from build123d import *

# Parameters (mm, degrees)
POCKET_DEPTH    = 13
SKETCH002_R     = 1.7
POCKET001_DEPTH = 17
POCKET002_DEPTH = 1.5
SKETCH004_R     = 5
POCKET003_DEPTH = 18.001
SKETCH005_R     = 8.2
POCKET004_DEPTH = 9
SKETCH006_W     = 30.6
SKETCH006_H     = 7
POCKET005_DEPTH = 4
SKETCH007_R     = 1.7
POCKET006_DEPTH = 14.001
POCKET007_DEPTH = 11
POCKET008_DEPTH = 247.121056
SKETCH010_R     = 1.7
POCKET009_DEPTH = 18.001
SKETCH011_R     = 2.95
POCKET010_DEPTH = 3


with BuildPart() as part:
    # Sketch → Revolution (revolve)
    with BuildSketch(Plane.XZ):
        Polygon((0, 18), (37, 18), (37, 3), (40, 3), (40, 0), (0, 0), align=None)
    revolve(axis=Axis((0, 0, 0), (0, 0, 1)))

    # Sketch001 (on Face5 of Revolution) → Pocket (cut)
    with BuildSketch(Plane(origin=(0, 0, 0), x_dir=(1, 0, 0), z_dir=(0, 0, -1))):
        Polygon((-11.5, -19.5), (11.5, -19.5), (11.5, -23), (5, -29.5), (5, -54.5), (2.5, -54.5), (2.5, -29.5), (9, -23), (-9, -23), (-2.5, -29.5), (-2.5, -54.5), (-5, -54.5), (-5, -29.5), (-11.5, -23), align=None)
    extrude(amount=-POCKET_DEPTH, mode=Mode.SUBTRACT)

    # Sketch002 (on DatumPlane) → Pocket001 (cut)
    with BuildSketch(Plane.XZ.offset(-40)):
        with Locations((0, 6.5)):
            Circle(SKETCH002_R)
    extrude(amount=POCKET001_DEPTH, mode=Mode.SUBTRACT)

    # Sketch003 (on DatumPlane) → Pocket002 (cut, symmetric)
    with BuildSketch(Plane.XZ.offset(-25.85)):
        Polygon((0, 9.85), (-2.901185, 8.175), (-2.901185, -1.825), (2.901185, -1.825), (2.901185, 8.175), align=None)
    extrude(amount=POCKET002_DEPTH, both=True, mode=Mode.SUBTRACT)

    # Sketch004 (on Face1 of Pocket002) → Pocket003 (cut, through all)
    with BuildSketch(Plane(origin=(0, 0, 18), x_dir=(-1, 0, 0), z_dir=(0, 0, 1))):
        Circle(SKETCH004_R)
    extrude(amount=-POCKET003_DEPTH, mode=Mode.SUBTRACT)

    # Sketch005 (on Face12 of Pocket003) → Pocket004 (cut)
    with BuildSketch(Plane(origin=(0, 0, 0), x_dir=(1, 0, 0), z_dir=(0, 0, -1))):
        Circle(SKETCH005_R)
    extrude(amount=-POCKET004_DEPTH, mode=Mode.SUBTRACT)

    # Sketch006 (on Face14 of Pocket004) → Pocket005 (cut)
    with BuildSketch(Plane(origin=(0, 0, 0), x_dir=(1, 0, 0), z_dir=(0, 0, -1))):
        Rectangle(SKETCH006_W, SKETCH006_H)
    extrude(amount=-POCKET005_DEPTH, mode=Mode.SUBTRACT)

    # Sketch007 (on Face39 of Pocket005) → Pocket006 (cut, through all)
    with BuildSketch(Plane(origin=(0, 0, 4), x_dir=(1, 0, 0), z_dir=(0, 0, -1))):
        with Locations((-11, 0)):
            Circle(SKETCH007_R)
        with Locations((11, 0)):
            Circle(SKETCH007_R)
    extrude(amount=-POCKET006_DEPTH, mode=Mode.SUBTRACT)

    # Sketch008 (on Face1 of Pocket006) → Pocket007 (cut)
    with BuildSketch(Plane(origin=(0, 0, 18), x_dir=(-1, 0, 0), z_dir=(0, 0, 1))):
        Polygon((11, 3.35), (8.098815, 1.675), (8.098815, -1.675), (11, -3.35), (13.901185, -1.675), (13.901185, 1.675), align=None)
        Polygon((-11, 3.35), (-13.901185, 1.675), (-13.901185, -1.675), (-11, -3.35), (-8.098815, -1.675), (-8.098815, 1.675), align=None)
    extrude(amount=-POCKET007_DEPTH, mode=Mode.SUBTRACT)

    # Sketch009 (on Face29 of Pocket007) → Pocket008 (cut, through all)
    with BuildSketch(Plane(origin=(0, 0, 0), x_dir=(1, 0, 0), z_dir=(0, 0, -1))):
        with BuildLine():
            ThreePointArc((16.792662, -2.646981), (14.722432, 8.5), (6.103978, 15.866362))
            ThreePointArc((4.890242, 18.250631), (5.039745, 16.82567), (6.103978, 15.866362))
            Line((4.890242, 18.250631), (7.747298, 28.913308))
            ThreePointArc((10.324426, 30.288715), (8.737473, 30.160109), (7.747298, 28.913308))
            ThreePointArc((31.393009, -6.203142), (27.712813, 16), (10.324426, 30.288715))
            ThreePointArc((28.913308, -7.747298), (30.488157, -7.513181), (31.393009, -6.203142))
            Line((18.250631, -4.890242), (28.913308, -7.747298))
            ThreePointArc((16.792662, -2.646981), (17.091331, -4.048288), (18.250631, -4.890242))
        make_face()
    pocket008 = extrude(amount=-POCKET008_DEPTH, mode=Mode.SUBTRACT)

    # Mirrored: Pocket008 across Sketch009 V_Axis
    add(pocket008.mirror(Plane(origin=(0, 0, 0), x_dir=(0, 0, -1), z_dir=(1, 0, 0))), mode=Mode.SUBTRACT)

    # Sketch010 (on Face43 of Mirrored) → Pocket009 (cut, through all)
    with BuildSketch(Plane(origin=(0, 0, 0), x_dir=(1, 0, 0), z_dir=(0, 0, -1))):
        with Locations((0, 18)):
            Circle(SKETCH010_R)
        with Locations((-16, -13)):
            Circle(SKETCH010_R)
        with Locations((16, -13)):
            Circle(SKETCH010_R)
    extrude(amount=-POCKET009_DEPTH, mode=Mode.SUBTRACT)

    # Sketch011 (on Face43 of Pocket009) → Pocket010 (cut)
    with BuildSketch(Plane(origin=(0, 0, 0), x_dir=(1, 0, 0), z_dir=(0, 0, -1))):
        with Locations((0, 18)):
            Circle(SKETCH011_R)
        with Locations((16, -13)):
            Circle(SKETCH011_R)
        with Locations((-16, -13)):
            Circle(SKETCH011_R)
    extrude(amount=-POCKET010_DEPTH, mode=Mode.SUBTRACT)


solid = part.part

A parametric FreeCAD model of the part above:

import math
import FreeCAD as App
import Part
import Sketcher
from FreeCAD import Vector
Q = App.Units.Quantity

doc = App.newDocument("Part")
body = doc.addObject("PartDesign::Body", "Body")

sketch1 = body.newObject("Sketcher::SketchObject", "Sketch")
sketch1.AttachmentSupport = (doc.getObject("XZ_Plane"), [""])
sketch1.MapMode = "FlatFace"
sketch1.addGeometry([
    Part.LineSegment(Vector(37, 18, 0), Vector(0, 18, 0)),
    Part.LineSegment(Vector(0, 18, 0), Vector(0, 0, 0)),
    Part.LineSegment(Vector(0, 0, 0), Vector(40, 0, 0)),
    Part.LineSegment(Vector(40, 0, 0), Vector(40, 3, 0)),
    Part.LineSegment(Vector(40, 3, 0), Vector(37, 3, 0)),
    Part.LineSegment(Vector(37, 3, 0), Vector(37, 18, 0)),
], False)
sketch1.addConstraint([
    Sketcher.Constraint("Coincident", 0, 2, 1, 1),
    Sketcher.Constraint("Coincident", 1, 2, 2, 1),
    Sketcher.Constraint("Coincident", 2, 2, 3, 1),
    Sketcher.Constraint("Coincident", 3, 2, 4, 1),
    Sketcher.Constraint("Coincident", 4, 2, 5, 1),
    Sketcher.Constraint("Coincident", 5, 2, 0, 1),
    Sketcher.Constraint("Horizontal", 0),
    Sketcher.Constraint("Vertical", 1),
    Sketcher.Constraint("Horizontal", 2),
    Sketcher.Constraint("Vertical", 3),
    Sketcher.Constraint("Horizontal", 4),
    Sketcher.Constraint("Vertical", 5),
    Sketcher.Constraint("Coincident", 1, 2, -1, 1),
    Sketcher.Constraint("Equal", 4, 3),
    Sketcher.Constraint("DistanceX", 0, 2, 0, 1, 37.0),
    Sketcher.Constraint("DistanceX", 2, 1, 2, 2, 40.0),
    Sketcher.Constraint("DistanceY", 1, 2, 1, 1, 18.0),
])
revolution = body.newObject("PartDesign::Revolution", "Revolution")
revolution.Profile = sketch1
revolution.ReferenceAxis = (sketch1, ["V_Axis"])
revolution.Angle = 360

sketch2 = body.newObject("Sketcher::SketchObject", "Sketch001")
sketch2.AttachmentSupport = (doc.getObject("XY_Plane"), [""])
sketch2.MapMode = "FlatFace"
sketch2.addGeometry([
    Part.LineSegment(Vector(11.5, 19.5, 0), Vector(-11.5, 19.5, 0)),
    Part.LineSegment(Vector(-11.5, 19.5, 0), Vector(-11.5, 23, 0)),
    Part.LineSegment(Vector(-11.5, 23, 0), Vector(-5, 29.5, 0)),
    Part.LineSegment(Vector(-5, 29.5, 0), Vector(-5, 54.5, 0)),
    Part.LineSegment(Vector(-5, 54.5, 0), Vector(-2.5, 54.5, 0)),
    Part.LineSegment(Vector(-2.5, 54.5, 0), Vector(-2.5, 29.5, 0)),
    Part.LineSegment(Vector(-2.5, 29.5, 0), Vector(-9, 23, 0)),
    Part.LineSegment(Vector(-9, 23, 0), Vector(9, 23, 0)),
    Part.LineSegment(Vector(9, 23, 0), Vector(2.5, 29.5, 0)),
    Part.LineSegment(Vector(2.5, 29.5, 0), Vector(2.5, 54.5, 0)),
    Part.LineSegment(Vector(2.5, 54.5, 0), Vector(5, 54.5, 0)),
    Part.LineSegment(Vector(5, 54.5, 0), Vector(5, 29.5, 0)),
    Part.LineSegment(Vector(5, 29.5, 0), Vector(11.5, 23, 0)),
    Part.LineSegment(Vector(11.5, 23, 0), Vector(11.5, 19.5, 0)),
], False)
sketch2.addConstraint([
    Sketcher.Constraint("Coincident", 0, 2, 1, 1),
    Sketcher.Constraint("Coincident", 1, 2, 2, 1),
    Sketcher.Constraint("Coincident", 2, 2, 3, 1),
    Sketcher.Constraint("Coincident", 3, 2, 4, 1),
    Sketcher.Constraint("Coincident", 4, 2, 5, 1),
    Sketcher.Constraint("Coincident", 5, 2, 6, 1),
    Sketcher.Constraint("Coincident", 6, 2, 7, 1),
    Sketcher.Constraint("Coincident", 7, 2, 8, 1),
    Sketcher.Constraint("Coincident", 8, 2, 9, 1),
    Sketcher.Constraint("Coincident", 9, 2, 10, 1),
    Sketcher.Constraint("Coincident", 10, 2, 11, 1),
    Sketcher.Constraint("Coincident", 11, 2, 12, 1),
    Sketcher.Constraint("Coincident", 12, 2, 13, 1),
    Sketcher.Constraint("Coincident", 13, 2, 0, 1),
    Sketcher.Constraint("Horizontal", 0),
    Sketcher.Constraint("Vertical", 1),
    Sketcher.Constraint("Vertical", 3),
    Sketcher.Constraint("Horizontal", 4),
    Sketcher.Constraint("Vertical", 5),
    Sketcher.Constraint("Horizontal", 7),
    Sketcher.Constraint("Vertical", 9),
    Sketcher.Constraint("Horizontal", 10),
    Sketcher.Constraint("Vertical", 11),
    Sketcher.Constraint("Vertical", 13),
    Sketcher.Constraint("Symmetric", 5, 2, 8, 2, -2),
    Sketcher.Constraint("Symmetric", 3, 2, 10, 2, -2),
    Sketcher.Constraint("Symmetric", 1, 2, 12, 2, -2),
    Sketcher.Constraint("Parallel", 2, 6),
    Sketcher.Constraint("Perpendicular", 6, 8),
    Sketcher.Constraint("Parallel", 8, 12),
    Sketcher.Constraint("Horizontal", 2, 2, 5, 2),
    Sketcher.Constraint("Horizontal", 1, 2, 6, 2),
    Sketcher.Constraint("Horizontal", 8, 2, 11, 2),
    Sketcher.Constraint("DistanceX", 0, 2, 0, 1, 23.0),
    Sketcher.Constraint("DistanceX", 7, 1, 7, 2, 18.0),
    Sketcher.Constraint("DistanceY", 3, 1, 3, 2, 25.0),
    Sketcher.Constraint("DistanceY", 1, 1, 1, 2, 3.5),
    Sketcher.Constraint("DistanceY", -1, 1, 1, 2, 23.0),
    Sketcher.Constraint("DistanceX", 2, 2, -1, 1, 5.0),
])
pocket1 = body.newObject("PartDesign::Pocket", "Pocket")
pocket1.Profile = sketch2
pocket1.Length = 13
pocket1.Reversed = True

sketch3 = body.newObject("Sketcher::SketchObject", "Sketch002")
sketch3.AttachmentSupport = (doc.getObject("XZ_Plane"), [""])
sketch3.MapMode = "FlatFace"
sketch3.AttachmentOffset = App.Placement(Vector(0, 0, -40), App.Rotation())
sketch3.addGeometry(Part.Circle(Vector(0, 6.5, 0), Vector(0, 0, 1), 1.7), False)
sketch3.addConstraint([
    Sketcher.Constraint("PointOnObject", 0, 3, -2),
    Sketcher.Constraint("Diameter", 0, 3.4),
    Sketcher.Constraint("DistanceY", -1, 1, 0, 3, 6.5),
])
pocket2 = body.newObject("PartDesign::Pocket", "Pocket001")
pocket2.Profile = sketch3
pocket2.Length = 17
pocket2.Reversed = True

sketch4 = body.newObject("Sketcher::SketchObject", "Sketch003")
sketch4.AttachmentSupport = (doc.getObject("XZ_Plane"), [""])
sketch4.MapMode = "FlatFace"
sketch4.AttachmentOffset = App.Placement(Vector(0, 0, -25.85), App.Rotation())
sketch4.addGeometry([
    Part.LineSegment(Vector(0, 9.85, 0), Vector(-2.901185, 8.175, 0)),
    Part.LineSegment(Vector(-2.901185, 8.175, 0), Vector(-2.901185, -1.825, 0)),
    Part.LineSegment(Vector(-2.901185, -1.825, 0), Vector(2.901185, -1.825, 0)),
    Part.LineSegment(Vector(2.901185, -1.825, 0), Vector(2.901185, 8.175, 0)),
    Part.LineSegment(Vector(2.901185, 8.175, 0), Vector(0, 9.85, 0)),
], False)
sketch4.addConstraint([
    Sketcher.Constraint("Coincident", 0, 2, 1, 1),
    Sketcher.Constraint("Coincident", 1, 2, 2, 1),
    Sketcher.Constraint("Coincident", 2, 2, 3, 1),
    Sketcher.Constraint("Coincident", 3, 2, 4, 1),
    Sketcher.Constraint("Coincident", 4, 2, 0, 1),
    Sketcher.Constraint("Vertical", 1),
    Sketcher.Constraint("Horizontal", 2),
    Sketcher.Constraint("Vertical", 3),
    Sketcher.Constraint("Symmetric", 0, 2, 3, 2, -2),
    Sketcher.Constraint("PointOnObject", 4, 2, -2),
    Sketcher.Constraint("DistanceY", 1, 2, 1, 1, 10.0),
    Sketcher.Constraint("Angle", 0, Q("-149.999999 deg")),
    Sketcher.Constraint("Distance", 0, 3.35),
    Sketcher.Constraint("DistanceY", -1, 1, 4, 2, 9.85),
])
pocket3 = body.newObject("PartDesign::Pocket", "Pocket002")
pocket3.Profile = sketch4
pocket3.Length = 3
pocket3.Midplane = True

sketch5 = body.newObject("Sketcher::SketchObject", "Sketch004")
sketch5.AttachmentSupport = (doc.getObject("XY_Plane"), [""])
sketch5.MapMode = "FlatFace"
sketch5.AttachmentOffset = App.Placement(Vector(0, 0, 18), App.Rotation())
sketch5.addGeometry(Part.Circle(Vector(0, 0, 0), Vector(0, 0, 1), 5), False)
sketch5.addConstraint([
    Sketcher.Constraint("Coincident", 0, 3, -1, 1),
    Sketcher.Constraint("Diameter", 0, 10.0),
])
pocket4 = body.newObject("PartDesign::Pocket", "Pocket003")
pocket4.Profile = sketch5
pocket4.Type = "ThroughAll"

sketch6 = body.newObject("Sketcher::SketchObject", "Sketch005")
sketch6.AttachmentSupport = (doc.getObject("XY_Plane"), [""])
sketch6.MapMode = "FlatFace"
sketch6.addGeometry(Part.Circle(Vector(0, 0, 0), Vector(0, 0, 1), 8.2), False)
sketch6.addConstraint([
    Sketcher.Constraint("Coincident", 0, 3, -1, 1),
    Sketcher.Constraint("Diameter", 0, 16.4),
])
pocket5 = body.newObject("PartDesign::Pocket", "Pocket004")
pocket5.Profile = sketch6
pocket5.Length = 9
pocket5.Reversed = True

sketch7 = body.newObject("Sketcher::SketchObject", "Sketch006")
sketch7.AttachmentSupport = (doc.getObject("XY_Plane"), [""])
sketch7.MapMode = "FlatFace"
sketch7.addGeometry([
    Part.LineSegment(Vector(-15.3, -3.5, 0), Vector(-15.3, 3.5, 0)),
    Part.LineSegment(Vector(-15.3, 3.5, 0), Vector(15.3, 3.5, 0)),
    Part.LineSegment(Vector(15.3, 3.5, 0), Vector(15.3, -3.5, 0)),
    Part.LineSegment(Vector(15.3, -3.5, 0), Vector(-15.3, -3.5, 0)),
], False)
sketch7.addConstraint([
    Sketcher.Constraint("Coincident", 0, 2, 1, 1),
    Sketcher.Constraint("Coincident", 1, 2, 2, 1),
    Sketcher.Constraint("Coincident", 2, 2, 3, 1),
    Sketcher.Constraint("Coincident", 3, 2, 0, 1),
    Sketcher.Constraint("Vertical", 0),
    Sketcher.Constraint("Horizontal", 1),
    Sketcher.Constraint("Vertical", 2),
    Sketcher.Constraint("Horizontal", 3),
    Sketcher.Constraint("Symmetric", 0, 2, 2, 2, -1, 1),
    Sketcher.Constraint("DistanceY", 0, 1, 0, 2, 7.0),
    Sketcher.Constraint("DistanceX", 1, 1, 1, 2, 30.6),
])
pocket6 = body.newObject("PartDesign::Pocket", "Pocket005")
pocket6.Profile = sketch7
pocket6.Length = 4
pocket6.Reversed = True

sketch8 = body.newObject("Sketcher::SketchObject", "Sketch007")
sketch8.AttachmentSupport = (doc.getObject("XY_Plane"), [""])
sketch8.MapMode = "FlatFace"
sketch8.AttachmentOffset = App.Placement(Vector(0, 0, 4), App.Rotation())
sketch8.addGeometry([
    Part.Circle(Vector(-11, 0, 0), Vector(0, 0, 1), 1.7),
    Part.Circle(Vector(11, 0, 0), Vector(0, 0, 1), 1.7),
], False)
sketch8.addConstraint([
    Sketcher.Constraint("Equal", 0, 1),
    Sketcher.Constraint("Symmetric", 0, 3, 1, 3, -1, 1),
    Sketcher.Constraint("PointOnObject", 0, 3, -1),
    Sketcher.Constraint("Diameter", 0, 3.4),
    Sketcher.Constraint("DistanceX", 0, 3, -1, 1, 11.0),
])
pocket7 = body.newObject("PartDesign::Pocket", "Pocket006")
pocket7.Profile = sketch8
pocket7.Type = "ThroughAll"
pocket7.Reversed = True

sketch9 = body.newObject("Sketcher::SketchObject", "Sketch008")
sketch9.AttachmentSupport = (doc.getObject("XY_Plane"), [""])
sketch9.MapMode = "FlatFace"
sketch9.AttachmentOffset = App.Placement(Vector(0, 0, 18), App.Rotation())
sketch9.addGeometry([
    Part.LineSegment(Vector(-11, -3.35, 0), Vector(-8.098815, -1.675, 0)),
    Part.LineSegment(Vector(-8.098815, -1.675, 0), Vector(-8.098815, 1.675, 0)),
    Part.LineSegment(Vector(-8.098815, 1.675, 0), Vector(-11, 3.35, 0)),
    Part.LineSegment(Vector(-11, 3.35, 0), Vector(-13.901185, 1.675, 0)),
    Part.LineSegment(Vector(-13.901185, 1.675, 0), Vector(-13.901185, -1.675, 0)),
    Part.LineSegment(Vector(-13.901185, -1.675, 0), Vector(-11, -3.35, 0)),
    Part.LineSegment(Vector(11, -3.35, 0), Vector(13.901185, -1.675, 0)),
    Part.LineSegment(Vector(13.901185, -1.675, 0), Vector(13.901185, 1.675, 0)),
    Part.LineSegment(Vector(13.901185, 1.675, 0), Vector(11, 3.35, 0)),
    Part.LineSegment(Vector(11, 3.35, 0), Vector(8.098815, 1.675, 0)),
    Part.LineSegment(Vector(8.098815, 1.675, 0), Vector(8.098815, -1.675, 0)),
    Part.LineSegment(Vector(8.098815, -1.675, 0), Vector(11, -3.35, 0)),
], False)
sketch9.addConstraint([
    Sketcher.Constraint("Coincident", 0, 2, 1, 1),
    Sketcher.Constraint("Coincident", 1, 2, 2, 1),
    Sketcher.Constraint("Coincident", 2, 2, 3, 1),
    Sketcher.Constraint("Coincident", 3, 2, 4, 1),
    Sketcher.Constraint("Coincident", 4, 2, 5, 1),
    Sketcher.Constraint("Coincident", 5, 2, 0, 1),
    Sketcher.Constraint("Coincident", 6, 2, 7, 1),
    Sketcher.Constraint("Coincident", 7, 2, 8, 1),
    Sketcher.Constraint("Coincident", 8, 2, 9, 1),
    Sketcher.Constraint("Coincident", 9, 2, 10, 1),
    Sketcher.Constraint("Coincident", 10, 2, 11, 1),
    Sketcher.Constraint("Coincident", 11, 2, 6, 1),
    Sketcher.Constraint("Vertical", 1),
    Sketcher.Constraint("Vertical", 4),
    Sketcher.Constraint("Vertical", 7),
    Sketcher.Constraint("Vertical", 10),
    Sketcher.Constraint("Symmetric", 3, 2, 6, 2, -1, 1),
    Sketcher.Constraint("Symmetric", 5, 2, 8, 2, -1, 1),
    Sketcher.Constraint("Symmetric", 0, 2, 9, 2, -1, 1),
    Sketcher.Constraint("Symmetric", 2, 2, 11, 2, -1, 1),
    Sketcher.Constraint("Symmetric", 2, 2, 8, 2, -2),
    Sketcher.Constraint("Parallel", 0, 3),
    Sketcher.Constraint("Parallel", 2, 5),
    Sketcher.Constraint("Parallel", 5, 8),
    Sketcher.Constraint("Parallel", 8, 11),
    Sketcher.Constraint("Horizontal", 1, 2, 3, 2),
    Sketcher.Constraint("Horizontal", 0, 2, 4, 2),
    Sketcher.Constraint("Angle", 0, Q("30.000001 deg")),
    Sketcher.Constraint("DistanceX", 2, 2, -1, 1, 11.0),
    Sketcher.Constraint("DistanceY", 1, 1, 1, 2, 3.35),
    Sketcher.Constraint("DistanceY", 5, 2, 2, 2, 6.7),
])
pocket8 = body.newObject("PartDesign::Pocket", "Pocket007")
pocket8.Profile = sketch9
pocket8.Length = 11

sketch10 = body.newObject("Sketcher::SketchObject", "Sketch009")
sketch10.AttachmentSupport = (doc.getObject("XY_Plane"), [""])
sketch10.MapMode = "FlatFace"
sketch10.addGeometry([
    Part.ArcOfCircle(Part.Circle(Vector(0.000001, 0, 0), Vector(0, 0, 1), 16.999999), math.radians(-68.957675), math.radians(8.957673)),
    Part.ArcOfCircle(Part.Circle(Vector(18.76827, 2.95839, 0), Vector(0, 0, 1), 2.000001), math.radians(105.000028), math.radians(188.957647)),
    Part.LineSegment(Vector(18.250631, 4.890242, 0), Vector(28.913308, 7.747298, 0)),
    Part.ArcOfCircle(Part.Circle(Vector(29.430945, 5.815445, 0), Vector(0, 0, 1), 2.000001), math.radians(11.177448), math.radians(104.999971)),
    Part.ArcOfCircle(Part.Circle(Vector(0, 0, 0), Vector(0, 0, 1), 32), math.radians(-71.177445), math.radians(11.177446)),
    Part.ArcOfCircle(Part.Circle(Vector(9.67915, -28.39567, 0), Vector(0, 0, 1), 2), math.radians(-164.999997), math.radians(-71.177469)),
    Part.LineSegment(Vector(7.747298, -28.913308, 0), Vector(4.890242, -18.250631, 0)),
    Part.ArcOfCircle(Part.Circle(Vector(6.822093, -17.732992, 0), Vector(0, 0, 1), 1.999999), math.radians(111.042327), math.radians(195.000024)),
], False)
sketch10.addConstraint([
    Sketcher.Constraint("Tangent", 0, 2, 1, 2),
    Sketcher.Constraint("Tangent", 1, 1, 2, 1),
    Sketcher.Constraint("Tangent", 2, 2, 3, 2),
    Sketcher.Constraint("Tangent", 3, 1, 4, 2),
    Sketcher.Constraint("Tangent", 4, 1, 5, 2),
    Sketcher.Constraint("Tangent", 5, 1, 6, 1),
    Sketcher.Constraint("Tangent", 6, 2, 7, 2),
    Sketcher.Constraint("Tangent", 7, 1, 0, 1),
    Sketcher.Constraint("Coincident", 0, 3, -1, 1),
    Sketcher.Constraint("Coincident", 4, 3, -1, 1),
    Sketcher.Constraint("Equal", 1, 3),
    Sketcher.Constraint("Equal", 3, 5),
    Sketcher.Constraint("Equal", 5, 7),
    Sketcher.Constraint("Perpendicular", 2, 6),
    Sketcher.Constraint("Equal", 2, 6),
    Sketcher.Constraint("Radius", 0, 16.999999),
    Sketcher.Constraint("Radius", 1, 2.000001),
    Sketcher.Constraint("Radius", 4, 32.0),
    Sketcher.Constraint("Angle", 2, Q("15.000002 deg")),
    Sketcher.Constraint("DistanceX", -1, 1, 5, 1, 7.747298),
])
pocket9 = body.newObject("PartDesign::Pocket", "Pocket008")
pocket9.Profile = sketch10
pocket9.Type = "ThroughAll"
pocket9.Reversed = True
doc.recompute()

mirrored = body.newObject("PartDesign::Mirrored", "Mirrored")
mirrored.Originals = [pocket9]
mirrored.MirrorPlane = (doc.getObject("YZ_Plane"), [""])
body.Tip = mirrored

sketch11 = body.newObject("Sketcher::SketchObject", "Sketch010")
sketch11.AttachmentSupport = (doc.getObject("XY_Plane"), [""])
sketch11.MapMode = "FlatFace"
sketch11.addGeometry([
    Part.Circle(Vector(0, -18, 0), Vector(0, 0, 1), 1.7),
    Part.Circle(Vector(-16, 13, 0), Vector(0, 0, 1), 1.7),
    Part.Circle(Vector(16, 13, 0), Vector(0, 0, 1), 1.7),
], False)
sketch11.addConstraint([
    Sketcher.Constraint("Equal", 0, 1),
    Sketcher.Constraint("Equal", 1, 2),
    Sketcher.Constraint("Symmetric", 1, 3, 2, 3, -2),
    Sketcher.Constraint("PointOnObject", 0, 3, -2),
    Sketcher.Constraint("Diameter", 0, 3.4),
    Sketcher.Constraint("DistanceY", 0, 3, -1, 1, 18.0),
    Sketcher.Constraint("DistanceX", 1, 3, -1, 1, 16.0),
    Sketcher.Constraint("DistanceY", -1, 1, 1, 3, 13.0),
])
pocket10 = body.newObject("PartDesign::Pocket", "Pocket009")
pocket10.Profile = sketch11
pocket10.Type = "ThroughAll"
pocket10.Reversed = True

sketch12 = body.newObject("Sketcher::SketchObject", "Sketch011")
sketch12.AttachmentSupport = (doc.getObject("XY_Plane"), [""])
sketch12.MapMode = "FlatFace"
sketch12.addGeometry([
    Part.Circle(Vector(0, -18, 0), Vector(0, 0, 1), 2.95),
    Part.Circle(Vector(16, 13, 0), Vector(0, 0, 1), 2.95),
    Part.Circle(Vector(-16, 13, 0), Vector(0, 0, 1), 2.95),
], False)
sketch12.addConstraint([
    Sketcher.Constraint("Equal", 0, 1),
    Sketcher.Constraint("Equal", 1, 2),
    Sketcher.Constraint("Symmetric", 1, 3, 2, 3, -2),
    Sketcher.Constraint("PointOnObject", 0, 3, -2),
    Sketcher.Constraint("Diameter", 0, 5.9),
    Sketcher.Constraint("DistanceY", 0, 3, -1, 1, 18.0),
    Sketcher.Constraint("DistanceX", -1, 1, 1, 3, 16.0),
    Sketcher.Constraint("DistanceY", -1, 1, 1, 3, 13.0),
])
pocket11 = body.newObject("PartDesign::Pocket", "Pocket010")
pocket11.Profile = sketch12
pocket11.Length = 3
pocket11.Reversed = True

doc.recompute()
